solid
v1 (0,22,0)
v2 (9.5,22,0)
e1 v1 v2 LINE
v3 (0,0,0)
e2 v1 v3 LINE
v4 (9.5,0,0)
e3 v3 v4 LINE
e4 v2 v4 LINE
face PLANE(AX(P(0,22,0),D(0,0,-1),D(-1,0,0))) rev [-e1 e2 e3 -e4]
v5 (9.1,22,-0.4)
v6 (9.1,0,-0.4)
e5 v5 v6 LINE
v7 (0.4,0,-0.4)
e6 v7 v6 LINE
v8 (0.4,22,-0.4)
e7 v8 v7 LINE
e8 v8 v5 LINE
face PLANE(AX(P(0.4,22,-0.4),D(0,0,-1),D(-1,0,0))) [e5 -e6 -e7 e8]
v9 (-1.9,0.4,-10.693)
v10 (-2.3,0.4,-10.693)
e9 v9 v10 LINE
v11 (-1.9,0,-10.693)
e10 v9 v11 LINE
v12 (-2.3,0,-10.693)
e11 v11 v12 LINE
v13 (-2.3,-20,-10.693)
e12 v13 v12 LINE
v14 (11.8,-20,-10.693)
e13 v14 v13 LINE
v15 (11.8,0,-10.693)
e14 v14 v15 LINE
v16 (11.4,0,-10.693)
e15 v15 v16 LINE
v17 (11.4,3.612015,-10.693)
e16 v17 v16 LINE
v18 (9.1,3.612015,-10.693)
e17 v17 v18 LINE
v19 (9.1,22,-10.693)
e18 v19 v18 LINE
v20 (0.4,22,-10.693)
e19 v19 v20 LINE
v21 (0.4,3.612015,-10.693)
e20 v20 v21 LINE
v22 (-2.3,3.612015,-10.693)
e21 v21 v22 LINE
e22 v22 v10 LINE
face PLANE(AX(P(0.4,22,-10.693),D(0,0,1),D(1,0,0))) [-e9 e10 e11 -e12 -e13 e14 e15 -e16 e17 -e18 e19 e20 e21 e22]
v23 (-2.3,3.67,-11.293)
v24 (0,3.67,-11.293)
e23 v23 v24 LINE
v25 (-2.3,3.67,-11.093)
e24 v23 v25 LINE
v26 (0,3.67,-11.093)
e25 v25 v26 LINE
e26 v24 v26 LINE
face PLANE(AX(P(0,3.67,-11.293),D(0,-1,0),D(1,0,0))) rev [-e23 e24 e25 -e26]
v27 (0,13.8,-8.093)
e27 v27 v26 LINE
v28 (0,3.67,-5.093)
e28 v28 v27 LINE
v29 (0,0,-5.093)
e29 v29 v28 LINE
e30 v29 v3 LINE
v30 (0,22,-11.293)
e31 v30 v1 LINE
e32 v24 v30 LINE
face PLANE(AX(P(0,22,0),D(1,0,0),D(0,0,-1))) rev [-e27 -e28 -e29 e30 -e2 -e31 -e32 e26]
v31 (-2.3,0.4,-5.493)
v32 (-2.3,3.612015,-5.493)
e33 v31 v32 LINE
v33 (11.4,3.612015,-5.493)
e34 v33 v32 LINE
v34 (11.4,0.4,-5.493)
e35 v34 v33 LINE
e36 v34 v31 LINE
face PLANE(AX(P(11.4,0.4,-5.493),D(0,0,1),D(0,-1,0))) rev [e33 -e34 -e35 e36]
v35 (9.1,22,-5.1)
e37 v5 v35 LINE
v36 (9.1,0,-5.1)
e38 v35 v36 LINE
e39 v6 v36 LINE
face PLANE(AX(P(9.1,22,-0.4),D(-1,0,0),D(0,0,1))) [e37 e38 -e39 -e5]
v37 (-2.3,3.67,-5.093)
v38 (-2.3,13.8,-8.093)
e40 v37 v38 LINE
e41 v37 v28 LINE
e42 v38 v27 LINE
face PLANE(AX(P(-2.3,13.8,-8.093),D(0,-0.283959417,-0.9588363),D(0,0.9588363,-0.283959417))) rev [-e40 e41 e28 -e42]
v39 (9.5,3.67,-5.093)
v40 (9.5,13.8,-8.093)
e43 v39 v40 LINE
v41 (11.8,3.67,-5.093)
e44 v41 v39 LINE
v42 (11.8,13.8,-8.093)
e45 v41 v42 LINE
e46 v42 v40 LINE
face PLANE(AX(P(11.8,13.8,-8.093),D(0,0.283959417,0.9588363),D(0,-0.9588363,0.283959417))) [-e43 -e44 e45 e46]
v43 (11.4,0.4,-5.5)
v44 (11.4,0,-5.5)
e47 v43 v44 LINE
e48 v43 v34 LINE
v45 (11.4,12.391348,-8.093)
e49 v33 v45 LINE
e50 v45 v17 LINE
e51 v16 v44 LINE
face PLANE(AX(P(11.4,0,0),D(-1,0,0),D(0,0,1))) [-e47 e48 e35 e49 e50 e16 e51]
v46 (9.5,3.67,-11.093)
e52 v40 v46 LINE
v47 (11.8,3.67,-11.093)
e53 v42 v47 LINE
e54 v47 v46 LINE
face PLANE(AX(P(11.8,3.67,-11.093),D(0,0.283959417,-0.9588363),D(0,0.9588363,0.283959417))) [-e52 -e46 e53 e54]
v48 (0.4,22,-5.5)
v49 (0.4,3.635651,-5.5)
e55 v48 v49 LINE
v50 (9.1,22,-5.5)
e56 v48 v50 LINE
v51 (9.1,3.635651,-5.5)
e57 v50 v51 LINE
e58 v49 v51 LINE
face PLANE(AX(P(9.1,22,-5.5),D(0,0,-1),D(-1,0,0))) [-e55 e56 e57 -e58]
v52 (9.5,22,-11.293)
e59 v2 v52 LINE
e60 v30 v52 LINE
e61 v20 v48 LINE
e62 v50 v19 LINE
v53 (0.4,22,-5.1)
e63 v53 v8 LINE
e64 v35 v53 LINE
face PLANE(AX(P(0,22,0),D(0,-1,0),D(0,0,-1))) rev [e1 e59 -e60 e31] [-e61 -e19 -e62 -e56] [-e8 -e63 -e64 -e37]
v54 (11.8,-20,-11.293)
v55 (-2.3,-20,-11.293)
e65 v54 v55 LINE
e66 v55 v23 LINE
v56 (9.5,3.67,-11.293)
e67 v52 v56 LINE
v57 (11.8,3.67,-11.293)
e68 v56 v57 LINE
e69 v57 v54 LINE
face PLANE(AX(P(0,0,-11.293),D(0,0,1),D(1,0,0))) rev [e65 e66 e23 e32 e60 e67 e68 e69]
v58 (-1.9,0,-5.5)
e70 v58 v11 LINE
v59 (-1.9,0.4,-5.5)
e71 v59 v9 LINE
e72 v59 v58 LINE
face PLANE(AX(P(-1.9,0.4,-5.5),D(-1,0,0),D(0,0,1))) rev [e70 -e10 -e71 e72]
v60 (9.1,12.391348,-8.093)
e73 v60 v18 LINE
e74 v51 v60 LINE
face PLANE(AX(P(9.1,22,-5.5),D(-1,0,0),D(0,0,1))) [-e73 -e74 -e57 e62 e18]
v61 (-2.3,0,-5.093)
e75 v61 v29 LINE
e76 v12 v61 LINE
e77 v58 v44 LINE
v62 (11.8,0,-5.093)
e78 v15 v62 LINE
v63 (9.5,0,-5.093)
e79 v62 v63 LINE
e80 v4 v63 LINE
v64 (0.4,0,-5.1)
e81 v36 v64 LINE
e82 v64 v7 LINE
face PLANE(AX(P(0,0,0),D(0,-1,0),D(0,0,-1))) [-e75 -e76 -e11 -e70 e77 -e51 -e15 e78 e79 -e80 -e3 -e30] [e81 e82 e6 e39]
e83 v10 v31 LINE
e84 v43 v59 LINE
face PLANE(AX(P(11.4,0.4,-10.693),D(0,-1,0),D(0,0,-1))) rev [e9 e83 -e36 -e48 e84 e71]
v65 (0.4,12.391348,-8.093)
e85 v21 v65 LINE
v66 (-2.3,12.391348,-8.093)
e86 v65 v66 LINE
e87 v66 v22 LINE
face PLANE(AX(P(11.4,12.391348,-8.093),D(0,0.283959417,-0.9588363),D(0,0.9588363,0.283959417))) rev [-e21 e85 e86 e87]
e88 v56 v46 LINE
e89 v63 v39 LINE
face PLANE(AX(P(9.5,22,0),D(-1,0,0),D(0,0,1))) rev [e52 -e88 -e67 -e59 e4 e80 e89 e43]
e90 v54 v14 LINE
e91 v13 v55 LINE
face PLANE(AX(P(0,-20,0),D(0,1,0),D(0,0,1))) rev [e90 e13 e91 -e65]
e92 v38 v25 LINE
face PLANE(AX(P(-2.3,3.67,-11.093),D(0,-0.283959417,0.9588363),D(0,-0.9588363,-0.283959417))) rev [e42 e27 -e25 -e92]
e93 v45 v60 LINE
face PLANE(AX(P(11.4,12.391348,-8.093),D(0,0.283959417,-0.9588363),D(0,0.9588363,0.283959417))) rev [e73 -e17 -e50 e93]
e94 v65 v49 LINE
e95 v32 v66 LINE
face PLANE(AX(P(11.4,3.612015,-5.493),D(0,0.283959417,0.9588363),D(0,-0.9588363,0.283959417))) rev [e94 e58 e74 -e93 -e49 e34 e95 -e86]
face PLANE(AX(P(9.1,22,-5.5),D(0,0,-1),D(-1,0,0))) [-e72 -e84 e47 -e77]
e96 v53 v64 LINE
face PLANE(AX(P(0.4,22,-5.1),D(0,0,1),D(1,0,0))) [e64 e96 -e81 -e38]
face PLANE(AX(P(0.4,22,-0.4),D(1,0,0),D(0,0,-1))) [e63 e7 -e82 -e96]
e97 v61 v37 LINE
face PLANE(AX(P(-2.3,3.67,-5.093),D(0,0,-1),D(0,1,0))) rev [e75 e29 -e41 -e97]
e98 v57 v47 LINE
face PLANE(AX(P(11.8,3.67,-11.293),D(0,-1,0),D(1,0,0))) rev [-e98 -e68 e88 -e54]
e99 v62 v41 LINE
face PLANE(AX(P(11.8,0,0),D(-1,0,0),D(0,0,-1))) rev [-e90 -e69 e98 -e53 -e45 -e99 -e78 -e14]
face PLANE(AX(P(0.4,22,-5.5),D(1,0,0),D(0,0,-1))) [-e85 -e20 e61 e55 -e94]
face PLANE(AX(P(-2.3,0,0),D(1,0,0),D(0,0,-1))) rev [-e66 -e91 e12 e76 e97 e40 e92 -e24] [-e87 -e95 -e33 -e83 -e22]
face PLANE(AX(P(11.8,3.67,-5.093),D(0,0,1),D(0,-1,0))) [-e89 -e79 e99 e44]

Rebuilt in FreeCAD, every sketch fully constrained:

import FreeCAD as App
import Part
import Sketcher

doc = App.newDocument("Part")
body = doc.addObject("PartDesign::Body", "Body")

# Sketch on XZ plane
sketch1 = doc.addObject("Sketcher::SketchObject", "Sketch")
body.addObject(sketch1)
sketch1.AttachmentSupport = (doc.XZ_Plane, [""])
sketch1.MapMode = "FlatFace"
sketch1.addGeometry([
    Part.LineSegment(App.Vector(0, -11.1, 0), App.Vector(0, 0, 0)),  # 0
    Part.LineSegment(App.Vector(0, 0, 0), App.Vector(9.5, 0, 0)),  # 1
    Part.LineSegment(App.Vector(9.5, 0, 0), App.Vector(9.5, -11.1, 0)),  # 2
    Part.LineSegment(App.Vector(9.5, -11.1, 0), App.Vector(0, -11.1, 0)),  # 3
    Part.LineSegment(App.Vector(9.1, -0.4, 0), App.Vector(0.4, -0.4, 0)),  # 4
    Part.LineSegment(App.Vector(0.4, -0.4, 0), App.Vector(0.4, -5.1, 0)),  # 5
    Part.LineSegment(App.Vector(0.4, -5.1, 0), App.Vector(9.1, -5.1, 0)),  # 6
    Part.LineSegment(App.Vector(9.1, -5.1, 0), App.Vector(9.1, -0.4, 0)),  # 7
    Part.LineSegment(App.Vector(9.1, -5.5, 0), App.Vector(0.4, -5.5, 0)),  # 8
    Part.LineSegment(App.Vector(0.4, -5.5, 0), App.Vector(0.4, -10.7, 0)),  # 9
    Part.LineSegment(App.Vector(0.4, -10.7, 0), App.Vector(9.1, -10.7, 0)),  # 10
    Part.LineSegment(App.Vector(9.1, -10.7, 0), App.Vector(9.1, -5.5, 0)),  # 11
], False)
sketch1.addConstraint([
    Sketcher.Constraint("Coincident", 0, 2, 1, 1),
    Sketcher.Constraint("Coincident", 1, 2, 2, 1),
    Sketcher.Constraint("Coincident", 2, 2, 3, 1),
    Sketcher.Constraint("Coincident", 3, 2, 0, 1),
    Sketcher.Constraint("Coincident", 4, 2, 5, 1),
    Sketcher.Constraint("Coincident", 5, 2, 6, 1),
    Sketcher.Constraint("Coincident", 6, 2, 7, 1),
    Sketcher.Constraint("Coincident", 7, 2, 4, 1),
    Sketcher.Constraint("Coincident", 8, 2, 9, 1),
    Sketcher.Constraint("Coincident", 9, 2, 10, 1),
    Sketcher.Constraint("Coincident", 10, 2, 11, 1),
    Sketcher.Constraint("Coincident", 11, 2, 8, 1),
    Sketcher.Constraint("Vertical", 0),
    Sketcher.Constraint("Horizontal", 1),
    Sketcher.Constraint("Vertical", 2),
    Sketcher.Constraint("Horizontal", 3),
    Sketcher.Constraint("Horizontal", 4),
    Sketcher.Constraint("Vertical", 5),
    Sketcher.Constraint("Horizontal", 6),
    Sketcher.Constraint("Vertical", 7),
    Sketcher.Constraint("Horizontal", 8),
    Sketcher.Constraint("Vertical", 9),
    Sketcher.Constraint("Horizontal", 10),
    Sketcher.Constraint("Vertical", 11),
    Sketcher.Constraint("Coincident", 0, 2, -1, 1),
    Sketcher.Constraint("Vertical", 5, 2, 8, 2),
    Sketcher.Constraint("Vertical", 7, 2, 10, 2),
    Sketcher.Constraint("DistanceX", 1, 1, 1, 2, 9.5),
    Sketcher.Constraint("DistanceX", 4, 2, 4, 1, 8.7),
    Sketcher.Constraint("DistanceY", 5, 2, 5, 1, 4.7),
    Sketcher.Constraint("DistanceX", -1, 1, 4, 2, 0.4),
    Sketcher.Constraint("DistanceY", 4, 2, -1, 1, 0.4),
    Sketcher.Constraint("DistanceY", 8, 2, -1, 1, 5.5),
    Sketcher.Constraint("DistanceY", 3, 2, 9, 2, 0.4),
    Sketcher.Constraint("DistanceY", 0, 1, 0, 2, 11.093),
])
pad1 = doc.addObject("PartDesign::Pad", "Pad")
body.addObject(pad1)
pad1.Profile = sketch1
pad1.Length = 22
pad1.Reversed = True

# Sketch on YZ plane
sketch2 = doc.addObject("Sketcher::SketchObject", "Sketch001")
body.addObject(sketch2)
sketch2.AttachmentSupport = (doc.YZ_Plane, [""])
sketch2.MapMode = "FlatFace"
sketch2.addGeometry([
    Part.LineSegment(App.Vector(3.7, -11.1, 0), App.Vector(0, -11.1, 0)),  # 0
    Part.LineSegment(App.Vector(0, -11.1, 0), App.Vector(0, -5.1, 0)),  # 1
    Part.LineSegment(App.Vector(0, -5.1, 0), App.Vector(3.7, -5.1, 0)),  # 2
    Part.LineSegment(App.Vector(3.7, -5.1, 0), App.Vector(13.8, -8.1, 0)),  # 3
    Part.LineSegment(App.Vector(13.8, -8.1, 0), App.Vector(3.7, -11.1, 0)),  # 4
], False)
sketch2.addConstraint([
    Sketcher.Constraint("Coincident", 0, 2, 1, 1),
    Sketcher.Constraint("Coincident", 1, 2, 2, 1),
    Sketcher.Constraint("Coincident", 2, 2, 3, 1),
    Sketcher.Constraint("Coincident", 3, 2, 4, 1),
    Sketcher.Constraint("Coincident", 4, 2, 0, 1),
    Sketcher.Constraint("Horizontal", 0),
    Sketcher.Constraint("Vertical", 1),
    Sketcher.Constraint("Horizontal", 2),
    Sketcher.Constraint("PointOnObject", 0, 2, -2),
    Sketcher.Constraint("Vertical", 2, 2, 4, 2),
    Sketcher.Constraint("Equal", 3, 4),
    Sketcher.Constraint("DistanceY", 1, 1, 1, 2, 6.0),
    Sketcher.Constraint("DistanceX", 0, 2, 0, 1, 3.67),
    Sketcher.Constraint("DistanceX", -1, 1, 3, 2, 13.8),
    Sketcher.Constraint("DistanceY", 0, 2, -1, 1, 11.093),
])
pad2 = doc.addObject("PartDesign::Pad", "Pad001")
body.addObject(pad2)
pad2.Profile = sketch2
pad2.Length = 2.3
pad2.Reversed = True
doc.recompute()

datumplane = doc.addObject("PartDesign::Plane", "DatumPlane")
body.addObject(datumplane)
datumplane.AttachmentSupport = (doc.YZ_Plane, [""])
datumplane.MapMode = "FlatFace"
datumplane.AttachmentOffset = App.Placement(App.Vector(0, 0, 4.75), App.Rotation())
mirrored = doc.addObject("PartDesign::Mirrored", "Mirrored")
body.addObject(mirrored)
mirrored.Originals = [pad2]
mirrored.MirrorPlane = (datumplane, [""])
body.Tip = mirrored

# Sketch on YZ plane
sketch3 = doc.addObject("Sketcher::SketchObject", "Sketch002")
body.addObject(sketch3)
sketch3.AttachmentSupport = (doc.YZ_Plane, [""])
sketch3.MapMode = "FlatFace"
sketch3.AttachmentOffset = App.Placement(App.Vector(0, 0, -2.3), App.Rotation())
sketch3.addGeometry([
    Part.LineSegment(App.Vector(0.4, -10.7, 0), App.Vector(0.4, -5.5, 0)),  # 0
    Part.LineSegment(App.Vector(0.4, -5.5, 0), App.Vector(3.6, -5.5, 0)),  # 1
    Part.LineSegment(App.Vector(3.6, -5.5, 0), App.Vector(12.4, -8.1, 0)),  # 2
    Part.LineSegment(App.Vector(12.4, -8.1, 0), App.Vector(3.6, -10.7, 0)),  # 3
    Part.LineSegment(App.Vector(3.6, -10.7, 0), App.Vector(0.4, -10.7, 0)),  # 4
], False)
sketch3.addConstraint([
    Sketcher.Constraint("Coincident", 0, 2, 1, 1),
    Sketcher.Constraint("Coincident", 1, 2, 2, 1),
    Sketcher.Constraint("Coincident", 2, 2, 3, 1),
    Sketcher.Constraint("Coincident", 3, 2, 4, 1),
    Sketcher.Constraint("Coincident", 4, 2, 0, 1),
    Sketcher.Constraint("Vertical", 0),
    Sketcher.Constraint("Horizontal", 1),
    Sketcher.Constraint("Horizontal", 4),
    Sketcher.Constraint("Vertical", 1, 2, 3, 2),
    Sketcher.Constraint("Equal", 2, 3),
    Sketcher.Constraint("DistanceY", 0, 1, 0, 2, 5.2),
    Sketcher.Constraint("DistanceX", -1, 1, 0, 2, 0.4),
    Sketcher.Constraint("DistanceY", 0, 2, -1, 1, 5.493),
    Sketcher.Constraint("DistanceX", 1, 1, 1, 2, 3.212015),
    Sketcher.Constraint("DistanceX", -1, 1, 2, 2, 12.391348),
])
pocket1 = doc.addObject("PartDesign::Pocket", "Pocket")
body.addObject(pocket1)
pocket1.Profile = sketch3
pocket1.Length = 13.7
pocket1.Reversed = True

# Sketch on XZ plane
sketch4 = doc.addObject("Sketcher::SketchObject", "Sketch003")
body.addObject(sketch4)
sketch4.AttachmentSupport = (doc.XZ_Plane, [""])
sketch4.MapMode = "FlatFace"
sketch4.addGeometry([
    Part.LineSegment(App.Vector(-2, -6, 0), App.Vector(-2, -11, 0)),
    Part.LineSegment(App.Vector(-2, -11, 0), App.Vector(11, -11, 0)),
    Part.LineSegment(App.Vector(11, -11, 0), App.Vector(11, -6, 0)),
    Part.LineSegment(App.Vector(11, -6, 0), App.Vector(-2, -6, 0)),
], False)
sketch4.addConstraint([
    Sketcher.Constraint("Coincident", 0, 2, 1, 1),
    Sketcher.Constraint("Coincident", 1, 2, 2, 1),
    Sketcher.Constraint("Coincident", 2, 2, 3, 1),
    Sketcher.Constraint("Coincident", 3, 2, 0, 1),
    Sketcher.Constraint("Vertical", 0),
    Sketcher.Constraint("Horizontal", 1),
    Sketcher.Constraint("Vertical", 2),
    Sketcher.Constraint("Horizontal", 3),
    Sketcher.Constraint("DistanceX", 1, 1, 1, 2, 13.3),
    Sketcher.Constraint("DistanceX", 0, 2, -1, 1, 1.9),
    Sketcher.Constraint("DistanceY", 2, 2, -1, 1, 5.5),
    Sketcher.Constraint("DistanceY", 0, 2, 0, 1, 5.193),
])
pocket2 = doc.addObject("PartDesign::Pocket", "Pocket001")
body.addObject(pocket2)
pocket2.Profile = sketch4
pocket2.Length = 0.4

# Sketch on XZ plane
sketch5 = doc.addObject("Sketcher::SketchObject", "Sketch004")
body.addObject(sketch5)
sketch5.AttachmentSupport = (doc.XZ_Plane, [""])
sketch5.MapMode = "FlatFace"
sketch5.addGeometry([
    Part.LineSegment(App.Vector(-2.3, -10.69, 0), App.Vector(-2.3, -11.09, 0)),
    Part.LineSegment(App.Vector(-2.3, -11.09, 0), App.Vector(11.8, -11.09, 0)),
    Part.LineSegment(App.Vector(11.8, -11.09, 0), App.Vector(11.8, -10.69, 0)),
    Part.LineSegment(App.Vector(11.8, -10.69, 0), App.Vector(-2.3, -10.69, 0)),
], False)
sketch5.addConstraint([
    Sketcher.Constraint("Coincident", 0, 2, 1, 1),
    Sketcher.Constraint("Coincident", 1, 2, 2, 1),
    Sketcher.Constraint("Coincident", 2, 2, 3, 1),
    Sketcher.Constraint("Coincident", 3, 2, 0, 1),
    Sketcher.Constraint("Vertical", 0),
    Sketcher.Constraint("Horizontal", 1),
    Sketcher.Constraint("Vertical", 2),
    Sketcher.Constraint("Horizontal", 3),
    Sketcher.Constraint("DistanceX", 1, 1, 1, 2, 14.1),
    Sketcher.Constraint("DistanceY", 0, 2, 0, 1, 0.4),
    Sketcher.Constraint("DistanceX", 0, 2, -1, 1, 2.3),
    Sketcher.Constraint("DistanceY", 0, 2, -1, 1, 11.093),
])
pad3 = doc.addObject("PartDesign::Pad", "Pad002")
body.addObject(pad3)
pad3.Profile = sketch5
pad3.Length = 20

# Sketch on XY plane
sketch6 = doc.addObject("Sketcher::SketchObject", "Sketch005")
body.addObject(sketch6)
sketch6.AttachmentSupport = (doc.XY_Plane, [""])
sketch6.MapMode = "FlatFace"
sketch6.AttachmentOffset = App.Placement(App.Vector(0, 0, -11.093), App.Rotation())
sketch6.addGeometry([
    Part.LineSegment(App.Vector(-2.3, 3.7, 0), App.Vector(0, 3.7, 0)),  # 0
    Part.LineSegment(App.Vector(0, 3.7, 0), App.Vector(0, 22, 0)),  # 1
    Part.LineSegment(App.Vector(0, 22, 0), App.Vector(9.5, 22, 0)),  # 2
    Part.LineSegment(App.Vector(9.5, 22, 0), App.Vector(9.5, 3.7, 0)),  # 3
    Part.LineSegment(App.Vector(9.5, 3.7, 0), App.Vector(11.8, 3.7, 0)),  # 4
    Part.LineSegment(App.Vector(11.8, 3.7, 0), App.Vector(11.8, -20, 0)),  # 5
    Part.LineSegment(App.Vector(11.8, -20, 0), App.Vector(-2.3, -20, 0)),  # 6
    Part.LineSegment(App.Vector(-2.3, -20, 0), App.Vector(-2.3, 3.7, 0)),  # 7
], False)
sketch6.addConstraint([
    Sketcher.Constraint("Coincident", 0, 2, 1, 1),
    Sketcher.Constraint("Coincident", 1, 2, 2, 1),
    Sketcher.Constraint("Coincident", 2, 2, 3, 1),
    Sketcher.Constraint("Coincident", 3, 2, 4, 1),
    Sketcher.Constraint("Coincident", 4, 2, 5, 1),
    Sketcher.Constraint("Coincident", 5, 2, 6, 1),
    Sketcher.Constraint("Coincident", 6, 2, 7, 1),
    Sketcher.Constraint("Coincident", 7, 2, 0, 1),
    Sketcher.Constraint("Horizontal", 0),
    Sketcher.Constraint("Vertical", 1),
    Sketcher.Constraint("Horizontal", 2),
    Sketcher.Constraint("Vertical", 3),
    Sketcher.Constraint("Horizontal", 4),
    Sketcher.Constraint("Vertical", 5),
    Sketcher.Constraint("Horizontal", 6),
    Sketcher.Constraint("Vertical", 7),
    Sketcher.Constraint("PointOnObject", 0, 2, -2),
    Sketcher.Constraint("Horizontal", 0, 2, 3, 2),
    Sketcher.Constraint("Equal", 0, 4),
    Sketcher.Constraint("DistanceX", 0, 1, 0, 2, 2.3),
    Sketcher.Constraint("DistanceX", 2, 1, 2, 2, 9.5),
    Sketcher.Constraint("DistanceY", -1, 1, 1, 2, 22.0),
    Sketcher.Constraint("DistanceY", 5, 2, -1, 1, 20.0),
    Sketcher.Constraint("DistanceY", 1, 1, 1, 2, 18.33),
])
pad4 = doc.addObject("PartDesign::Pad", "Pad003")
body.addObject(pad4)
pad4.Profile = sketch6
pad4.Length = 0.2
pad4.Reversed = True

doc.recompute()
